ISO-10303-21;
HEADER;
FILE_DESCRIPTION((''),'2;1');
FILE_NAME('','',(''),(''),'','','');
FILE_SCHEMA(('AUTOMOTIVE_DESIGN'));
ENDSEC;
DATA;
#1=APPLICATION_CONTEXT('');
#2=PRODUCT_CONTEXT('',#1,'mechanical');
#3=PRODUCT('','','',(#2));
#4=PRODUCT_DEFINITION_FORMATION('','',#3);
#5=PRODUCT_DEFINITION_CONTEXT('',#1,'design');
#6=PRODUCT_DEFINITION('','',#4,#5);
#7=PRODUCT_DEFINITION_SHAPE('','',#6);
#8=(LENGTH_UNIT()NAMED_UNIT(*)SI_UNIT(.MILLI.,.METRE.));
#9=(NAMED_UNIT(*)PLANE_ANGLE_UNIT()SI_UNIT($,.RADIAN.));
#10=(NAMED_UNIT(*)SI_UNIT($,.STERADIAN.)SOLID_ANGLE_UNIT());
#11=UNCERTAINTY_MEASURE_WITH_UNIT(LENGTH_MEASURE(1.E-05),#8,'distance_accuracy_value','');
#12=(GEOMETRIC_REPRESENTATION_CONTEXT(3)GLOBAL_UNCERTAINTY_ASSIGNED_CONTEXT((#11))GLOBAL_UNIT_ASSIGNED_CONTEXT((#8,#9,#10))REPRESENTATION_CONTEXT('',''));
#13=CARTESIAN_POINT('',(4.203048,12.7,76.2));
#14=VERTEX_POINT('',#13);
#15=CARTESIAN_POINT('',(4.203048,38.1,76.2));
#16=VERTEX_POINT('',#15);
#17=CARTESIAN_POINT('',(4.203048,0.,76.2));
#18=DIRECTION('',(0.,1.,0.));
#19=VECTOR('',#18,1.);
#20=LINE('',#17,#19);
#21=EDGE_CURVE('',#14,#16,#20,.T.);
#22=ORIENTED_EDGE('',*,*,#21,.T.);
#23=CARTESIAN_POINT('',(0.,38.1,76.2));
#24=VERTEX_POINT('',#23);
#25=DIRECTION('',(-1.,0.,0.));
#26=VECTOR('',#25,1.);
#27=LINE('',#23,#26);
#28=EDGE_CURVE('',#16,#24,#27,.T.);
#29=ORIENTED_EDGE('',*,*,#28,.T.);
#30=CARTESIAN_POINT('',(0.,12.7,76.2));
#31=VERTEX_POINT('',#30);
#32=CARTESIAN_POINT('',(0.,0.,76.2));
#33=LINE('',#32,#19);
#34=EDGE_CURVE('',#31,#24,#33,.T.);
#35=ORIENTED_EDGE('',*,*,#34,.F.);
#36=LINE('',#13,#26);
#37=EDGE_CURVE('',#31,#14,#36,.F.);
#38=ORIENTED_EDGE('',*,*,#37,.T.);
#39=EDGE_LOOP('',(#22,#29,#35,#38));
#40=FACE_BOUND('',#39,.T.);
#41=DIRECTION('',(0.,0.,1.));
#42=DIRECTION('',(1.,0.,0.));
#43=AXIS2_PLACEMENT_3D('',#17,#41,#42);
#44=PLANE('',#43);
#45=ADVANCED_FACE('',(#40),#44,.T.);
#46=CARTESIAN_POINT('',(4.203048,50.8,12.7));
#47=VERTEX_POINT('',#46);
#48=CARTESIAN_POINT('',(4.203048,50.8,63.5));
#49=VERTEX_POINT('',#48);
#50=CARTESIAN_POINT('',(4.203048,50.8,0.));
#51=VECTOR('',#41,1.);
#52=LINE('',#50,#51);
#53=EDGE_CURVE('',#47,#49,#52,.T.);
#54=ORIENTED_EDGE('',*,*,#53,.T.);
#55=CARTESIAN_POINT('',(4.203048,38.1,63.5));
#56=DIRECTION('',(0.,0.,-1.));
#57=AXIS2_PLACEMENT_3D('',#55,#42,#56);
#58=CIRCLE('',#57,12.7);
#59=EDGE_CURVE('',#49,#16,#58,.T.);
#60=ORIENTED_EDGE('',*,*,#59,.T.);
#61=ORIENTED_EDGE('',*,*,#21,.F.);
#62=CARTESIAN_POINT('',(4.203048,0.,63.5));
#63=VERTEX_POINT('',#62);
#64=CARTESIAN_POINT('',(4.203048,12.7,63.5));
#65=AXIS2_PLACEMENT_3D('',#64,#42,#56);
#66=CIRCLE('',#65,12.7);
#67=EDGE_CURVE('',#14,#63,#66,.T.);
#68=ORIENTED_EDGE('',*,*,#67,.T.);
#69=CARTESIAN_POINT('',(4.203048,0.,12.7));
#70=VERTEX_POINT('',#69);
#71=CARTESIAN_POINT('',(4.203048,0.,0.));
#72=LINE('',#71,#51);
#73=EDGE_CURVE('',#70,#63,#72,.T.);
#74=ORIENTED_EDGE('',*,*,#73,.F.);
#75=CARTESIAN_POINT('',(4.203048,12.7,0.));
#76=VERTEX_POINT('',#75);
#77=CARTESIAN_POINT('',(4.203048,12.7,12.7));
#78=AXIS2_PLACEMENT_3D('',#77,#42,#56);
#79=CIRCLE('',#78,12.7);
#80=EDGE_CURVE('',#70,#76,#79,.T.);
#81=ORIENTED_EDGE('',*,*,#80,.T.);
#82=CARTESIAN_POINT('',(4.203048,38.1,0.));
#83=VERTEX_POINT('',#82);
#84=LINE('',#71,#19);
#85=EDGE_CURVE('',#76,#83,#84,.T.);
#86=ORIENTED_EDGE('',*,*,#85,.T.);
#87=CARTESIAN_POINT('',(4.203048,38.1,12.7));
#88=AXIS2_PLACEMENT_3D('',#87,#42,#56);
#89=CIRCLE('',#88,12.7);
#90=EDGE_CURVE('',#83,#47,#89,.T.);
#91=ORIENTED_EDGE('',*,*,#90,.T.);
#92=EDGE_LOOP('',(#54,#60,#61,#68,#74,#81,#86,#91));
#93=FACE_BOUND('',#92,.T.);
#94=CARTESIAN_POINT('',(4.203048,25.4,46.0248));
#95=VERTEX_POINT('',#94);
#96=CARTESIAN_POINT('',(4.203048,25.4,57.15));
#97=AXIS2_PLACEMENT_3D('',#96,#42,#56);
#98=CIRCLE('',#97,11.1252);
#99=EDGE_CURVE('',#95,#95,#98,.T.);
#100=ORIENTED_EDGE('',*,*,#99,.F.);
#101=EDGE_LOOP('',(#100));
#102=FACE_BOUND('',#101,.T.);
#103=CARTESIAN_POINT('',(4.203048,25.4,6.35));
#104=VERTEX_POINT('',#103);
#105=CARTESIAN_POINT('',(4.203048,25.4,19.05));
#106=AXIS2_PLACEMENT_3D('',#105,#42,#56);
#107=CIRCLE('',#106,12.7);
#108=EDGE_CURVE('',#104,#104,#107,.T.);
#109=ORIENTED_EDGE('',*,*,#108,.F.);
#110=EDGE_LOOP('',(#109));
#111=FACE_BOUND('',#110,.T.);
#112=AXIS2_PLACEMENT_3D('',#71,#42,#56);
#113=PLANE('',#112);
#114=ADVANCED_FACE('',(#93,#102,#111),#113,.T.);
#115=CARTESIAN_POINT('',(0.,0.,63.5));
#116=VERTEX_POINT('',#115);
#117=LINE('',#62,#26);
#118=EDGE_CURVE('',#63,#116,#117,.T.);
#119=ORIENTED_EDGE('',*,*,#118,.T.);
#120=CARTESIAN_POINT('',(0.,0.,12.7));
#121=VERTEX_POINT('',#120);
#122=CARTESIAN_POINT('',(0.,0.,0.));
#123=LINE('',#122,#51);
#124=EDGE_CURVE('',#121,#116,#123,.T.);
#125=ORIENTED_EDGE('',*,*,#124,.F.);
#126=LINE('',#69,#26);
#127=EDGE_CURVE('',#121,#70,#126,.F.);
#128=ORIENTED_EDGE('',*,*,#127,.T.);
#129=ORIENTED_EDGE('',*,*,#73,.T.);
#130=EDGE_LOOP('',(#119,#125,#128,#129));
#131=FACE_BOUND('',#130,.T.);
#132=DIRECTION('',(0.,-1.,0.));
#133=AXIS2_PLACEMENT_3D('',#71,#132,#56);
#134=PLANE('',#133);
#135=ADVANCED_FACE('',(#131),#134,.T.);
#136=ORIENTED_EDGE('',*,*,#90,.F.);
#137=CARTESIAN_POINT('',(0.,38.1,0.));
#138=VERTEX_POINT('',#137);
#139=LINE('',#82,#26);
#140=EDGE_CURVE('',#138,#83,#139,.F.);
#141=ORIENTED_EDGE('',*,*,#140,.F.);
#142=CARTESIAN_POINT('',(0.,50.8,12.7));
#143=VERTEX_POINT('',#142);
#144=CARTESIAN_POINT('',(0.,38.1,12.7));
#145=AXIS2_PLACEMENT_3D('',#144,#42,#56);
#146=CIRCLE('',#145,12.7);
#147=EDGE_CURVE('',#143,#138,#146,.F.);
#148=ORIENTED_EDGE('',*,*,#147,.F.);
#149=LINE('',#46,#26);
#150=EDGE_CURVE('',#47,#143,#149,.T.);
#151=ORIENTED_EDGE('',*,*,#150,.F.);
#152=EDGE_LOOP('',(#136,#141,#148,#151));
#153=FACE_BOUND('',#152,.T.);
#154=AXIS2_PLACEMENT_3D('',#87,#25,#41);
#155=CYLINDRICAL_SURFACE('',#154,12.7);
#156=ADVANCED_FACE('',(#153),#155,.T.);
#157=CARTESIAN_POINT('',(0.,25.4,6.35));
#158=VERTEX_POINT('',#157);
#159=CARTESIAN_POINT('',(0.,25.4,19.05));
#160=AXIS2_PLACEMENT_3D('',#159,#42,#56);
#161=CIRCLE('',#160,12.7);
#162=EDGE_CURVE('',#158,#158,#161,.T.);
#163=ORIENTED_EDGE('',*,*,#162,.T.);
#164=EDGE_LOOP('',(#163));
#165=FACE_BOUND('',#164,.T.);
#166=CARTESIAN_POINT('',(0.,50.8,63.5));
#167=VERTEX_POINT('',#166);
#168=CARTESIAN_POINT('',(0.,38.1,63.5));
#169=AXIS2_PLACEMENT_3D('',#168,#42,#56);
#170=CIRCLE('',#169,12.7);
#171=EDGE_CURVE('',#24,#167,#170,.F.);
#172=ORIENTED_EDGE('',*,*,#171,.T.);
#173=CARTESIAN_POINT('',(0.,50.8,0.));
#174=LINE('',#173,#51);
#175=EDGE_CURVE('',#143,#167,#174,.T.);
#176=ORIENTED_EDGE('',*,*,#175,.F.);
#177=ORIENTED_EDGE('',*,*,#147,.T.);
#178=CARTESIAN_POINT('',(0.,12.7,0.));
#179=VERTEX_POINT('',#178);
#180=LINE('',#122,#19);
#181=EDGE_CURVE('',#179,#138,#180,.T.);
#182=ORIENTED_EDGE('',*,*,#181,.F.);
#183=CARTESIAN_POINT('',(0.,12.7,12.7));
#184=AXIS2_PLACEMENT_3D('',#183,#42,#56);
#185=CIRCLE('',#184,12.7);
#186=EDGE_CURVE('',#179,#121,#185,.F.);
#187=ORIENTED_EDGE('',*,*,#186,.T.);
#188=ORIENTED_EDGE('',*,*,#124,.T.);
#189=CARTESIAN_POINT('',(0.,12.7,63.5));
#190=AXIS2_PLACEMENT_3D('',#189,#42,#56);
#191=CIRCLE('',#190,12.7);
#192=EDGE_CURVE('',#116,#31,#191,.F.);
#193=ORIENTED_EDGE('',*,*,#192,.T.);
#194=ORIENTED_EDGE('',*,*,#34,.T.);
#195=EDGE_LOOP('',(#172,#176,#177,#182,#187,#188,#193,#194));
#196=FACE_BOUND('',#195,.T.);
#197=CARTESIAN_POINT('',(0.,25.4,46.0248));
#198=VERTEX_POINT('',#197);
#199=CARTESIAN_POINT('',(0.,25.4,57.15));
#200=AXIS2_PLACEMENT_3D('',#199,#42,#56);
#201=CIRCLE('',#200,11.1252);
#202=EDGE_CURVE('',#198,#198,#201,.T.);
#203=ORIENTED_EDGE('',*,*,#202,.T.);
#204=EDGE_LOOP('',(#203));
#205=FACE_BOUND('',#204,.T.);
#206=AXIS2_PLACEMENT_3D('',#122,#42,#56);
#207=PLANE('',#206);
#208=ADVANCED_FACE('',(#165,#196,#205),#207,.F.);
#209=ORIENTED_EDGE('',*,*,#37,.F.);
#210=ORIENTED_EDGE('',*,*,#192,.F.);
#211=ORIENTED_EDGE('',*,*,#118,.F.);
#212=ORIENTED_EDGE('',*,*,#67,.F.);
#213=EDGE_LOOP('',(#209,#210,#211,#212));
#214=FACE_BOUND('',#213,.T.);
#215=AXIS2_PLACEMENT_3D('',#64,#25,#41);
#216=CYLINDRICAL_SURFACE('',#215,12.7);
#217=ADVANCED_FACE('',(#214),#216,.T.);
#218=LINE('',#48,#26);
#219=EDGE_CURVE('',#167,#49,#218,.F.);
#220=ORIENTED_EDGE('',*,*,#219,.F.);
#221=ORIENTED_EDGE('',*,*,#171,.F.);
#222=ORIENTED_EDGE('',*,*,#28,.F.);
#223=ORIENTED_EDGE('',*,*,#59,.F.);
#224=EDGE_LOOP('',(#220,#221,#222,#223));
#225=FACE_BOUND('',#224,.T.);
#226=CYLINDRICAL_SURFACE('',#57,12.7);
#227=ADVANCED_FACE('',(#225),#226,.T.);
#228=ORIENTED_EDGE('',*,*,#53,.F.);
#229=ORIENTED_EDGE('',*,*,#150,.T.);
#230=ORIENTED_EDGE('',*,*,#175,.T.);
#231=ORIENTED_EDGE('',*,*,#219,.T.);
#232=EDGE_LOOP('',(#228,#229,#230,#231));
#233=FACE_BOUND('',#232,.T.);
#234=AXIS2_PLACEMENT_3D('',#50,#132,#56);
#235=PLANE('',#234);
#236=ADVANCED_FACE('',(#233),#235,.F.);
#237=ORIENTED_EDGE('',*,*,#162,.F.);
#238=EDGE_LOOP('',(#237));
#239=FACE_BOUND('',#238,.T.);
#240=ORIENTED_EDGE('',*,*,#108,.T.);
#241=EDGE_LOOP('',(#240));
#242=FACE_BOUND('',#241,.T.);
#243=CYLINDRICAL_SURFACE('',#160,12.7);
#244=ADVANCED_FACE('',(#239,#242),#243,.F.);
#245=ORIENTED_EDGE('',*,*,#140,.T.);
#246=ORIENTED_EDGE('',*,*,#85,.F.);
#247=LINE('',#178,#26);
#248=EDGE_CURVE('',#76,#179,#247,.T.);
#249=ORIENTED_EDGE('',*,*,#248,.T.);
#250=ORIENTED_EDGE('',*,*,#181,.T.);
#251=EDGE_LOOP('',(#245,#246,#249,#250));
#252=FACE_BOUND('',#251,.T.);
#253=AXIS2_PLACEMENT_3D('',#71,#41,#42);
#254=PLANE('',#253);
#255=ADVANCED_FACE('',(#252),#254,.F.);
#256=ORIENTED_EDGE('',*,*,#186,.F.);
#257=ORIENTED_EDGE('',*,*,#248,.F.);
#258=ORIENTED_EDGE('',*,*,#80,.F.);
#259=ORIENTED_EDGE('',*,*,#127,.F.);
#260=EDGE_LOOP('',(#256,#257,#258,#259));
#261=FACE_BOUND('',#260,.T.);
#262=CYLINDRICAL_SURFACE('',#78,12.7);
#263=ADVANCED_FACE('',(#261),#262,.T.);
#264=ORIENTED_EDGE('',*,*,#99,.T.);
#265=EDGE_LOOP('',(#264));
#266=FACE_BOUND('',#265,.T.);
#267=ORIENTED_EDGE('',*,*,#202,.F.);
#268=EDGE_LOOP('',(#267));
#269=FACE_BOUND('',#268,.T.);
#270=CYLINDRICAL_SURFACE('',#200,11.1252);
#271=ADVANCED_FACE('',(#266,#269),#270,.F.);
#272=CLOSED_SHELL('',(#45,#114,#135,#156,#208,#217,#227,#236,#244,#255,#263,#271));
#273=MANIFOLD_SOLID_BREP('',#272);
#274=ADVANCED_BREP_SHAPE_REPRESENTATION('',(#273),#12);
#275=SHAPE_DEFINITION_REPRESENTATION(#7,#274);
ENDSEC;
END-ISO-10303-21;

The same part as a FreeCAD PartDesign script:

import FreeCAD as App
import Part
import Sketcher
Q = App.Units.Quantity


def edges_at(feature, points):
    """Names of the edges that pass closest to the given points."""
    edges = feature.Shape.Edges
    near = lambda p: min(range(len(edges)), key=lambda i: edges[i].distToShape(Part.Vertex(*p))[0])
    return sorted({f"Edge{near(p) + 1}" for p in points})


def add_polygon(sketch, points):
    """Adds a closed chain of lines whose ends are joined by coincident constraints."""
    first, n = sketch.GeometryCount, len(points)
    for a, b in zip(points, points[1:] + points[:1]):
        sketch.addGeometry(Part.LineSegment(App.Vector(*a, 0), App.Vector(*b, 0)), False)
    for i in range(n):
        sketch.addConstraint(Sketcher.Constraint("Coincident", first + i, 2, first + (i + 1) % n, 1))

doc = App.newDocument("Part")
body = doc.addObject("PartDesign::Body", "Body")

sketch1 = body.newObject("Sketcher::SketchObject", "Sketch")
sketch1.AttachmentSupport = (doc.getObject("YZ_Plane"), [""])
sketch1.MapMode = "FlatFace"
add_polygon(sketch1, [(0, 76.2), (0, 0), (50.8, 0), (50.8, 76.2)])
sketch1.addConstraint([
    Sketcher.Constraint("Vertical", 0),
    Sketcher.Constraint("Horizontal", 1),
    Sketcher.Constraint("Vertical", 2),
    Sketcher.Constraint("Horizontal", 3),
    Sketcher.Constraint("Coincident", 0, 2, -1, 1),
    Sketcher.Constraint("DistanceX", 1, 1, 1, 2, Q("2 in")),
    Sketcher.Constraint("DistanceY", 0, 2, 0, 1, Q("3 in")),
])
pad1 = body.newObject("PartDesign::Pad", "Pad")
pad1.Profile = sketch1
pad1.Length = 4.203048

sketch2 = body.newObject("Sketcher::SketchObject", "Sketch001")
sketch2.AttachmentSupport = (doc.getObject("YZ_Plane"), [""])
sketch2.MapMode = "FlatFace"
sketch2.AttachmentOffset = App.Placement(App.Vector(0, 0, 4.203048), App.Rotation())
sketch2.addGeometry([
    Part.Circle(App.Vector(25.4, 57.15, 0), App.Vector(0, 0, 1), 11.1252),
    Part.Circle(App.Vector(25.4, 19.05, 0), App.Vector(0, 0, 1), 12.7),
], False)
sketch2.addConstraint([
    Sketcher.Constraint("Vertical", 0, 3, 1, 3),
    Sketcher.Constraint("Diameter", 1, Q("1 in")),
    Sketcher.Constraint("Diameter", 0, Q("0.876 in")),
    Sketcher.Constraint("DistanceX", -1, 1, 0, 3, Q("1 in")),
    Sketcher.Constraint("DistanceY", 1, 3, 0, 3, Q("1.5 in")),
    Sketcher.Constraint("DistanceY", -1, 1, 0, 3, Q("2.25 in")),
])
pocket1 = body.newObject("PartDesign::Pocket", "Pocket")
pocket1.Profile = sketch2
pocket1.Type = "ThroughAll"
doc.recompute()

fillet = body.newObject("PartDesign::Fillet", "Fillet")
fillet.Base = (pocket1, edges_at(pocket1, [
    (2.102, 0, 0),
    (2.102, 0, 76.2),
    (2.102, 50.8, 76.2),
    (2.102, 50.8, 0),
]))
fillet.Radius = Q("0.5 in")

doc.recompute()
